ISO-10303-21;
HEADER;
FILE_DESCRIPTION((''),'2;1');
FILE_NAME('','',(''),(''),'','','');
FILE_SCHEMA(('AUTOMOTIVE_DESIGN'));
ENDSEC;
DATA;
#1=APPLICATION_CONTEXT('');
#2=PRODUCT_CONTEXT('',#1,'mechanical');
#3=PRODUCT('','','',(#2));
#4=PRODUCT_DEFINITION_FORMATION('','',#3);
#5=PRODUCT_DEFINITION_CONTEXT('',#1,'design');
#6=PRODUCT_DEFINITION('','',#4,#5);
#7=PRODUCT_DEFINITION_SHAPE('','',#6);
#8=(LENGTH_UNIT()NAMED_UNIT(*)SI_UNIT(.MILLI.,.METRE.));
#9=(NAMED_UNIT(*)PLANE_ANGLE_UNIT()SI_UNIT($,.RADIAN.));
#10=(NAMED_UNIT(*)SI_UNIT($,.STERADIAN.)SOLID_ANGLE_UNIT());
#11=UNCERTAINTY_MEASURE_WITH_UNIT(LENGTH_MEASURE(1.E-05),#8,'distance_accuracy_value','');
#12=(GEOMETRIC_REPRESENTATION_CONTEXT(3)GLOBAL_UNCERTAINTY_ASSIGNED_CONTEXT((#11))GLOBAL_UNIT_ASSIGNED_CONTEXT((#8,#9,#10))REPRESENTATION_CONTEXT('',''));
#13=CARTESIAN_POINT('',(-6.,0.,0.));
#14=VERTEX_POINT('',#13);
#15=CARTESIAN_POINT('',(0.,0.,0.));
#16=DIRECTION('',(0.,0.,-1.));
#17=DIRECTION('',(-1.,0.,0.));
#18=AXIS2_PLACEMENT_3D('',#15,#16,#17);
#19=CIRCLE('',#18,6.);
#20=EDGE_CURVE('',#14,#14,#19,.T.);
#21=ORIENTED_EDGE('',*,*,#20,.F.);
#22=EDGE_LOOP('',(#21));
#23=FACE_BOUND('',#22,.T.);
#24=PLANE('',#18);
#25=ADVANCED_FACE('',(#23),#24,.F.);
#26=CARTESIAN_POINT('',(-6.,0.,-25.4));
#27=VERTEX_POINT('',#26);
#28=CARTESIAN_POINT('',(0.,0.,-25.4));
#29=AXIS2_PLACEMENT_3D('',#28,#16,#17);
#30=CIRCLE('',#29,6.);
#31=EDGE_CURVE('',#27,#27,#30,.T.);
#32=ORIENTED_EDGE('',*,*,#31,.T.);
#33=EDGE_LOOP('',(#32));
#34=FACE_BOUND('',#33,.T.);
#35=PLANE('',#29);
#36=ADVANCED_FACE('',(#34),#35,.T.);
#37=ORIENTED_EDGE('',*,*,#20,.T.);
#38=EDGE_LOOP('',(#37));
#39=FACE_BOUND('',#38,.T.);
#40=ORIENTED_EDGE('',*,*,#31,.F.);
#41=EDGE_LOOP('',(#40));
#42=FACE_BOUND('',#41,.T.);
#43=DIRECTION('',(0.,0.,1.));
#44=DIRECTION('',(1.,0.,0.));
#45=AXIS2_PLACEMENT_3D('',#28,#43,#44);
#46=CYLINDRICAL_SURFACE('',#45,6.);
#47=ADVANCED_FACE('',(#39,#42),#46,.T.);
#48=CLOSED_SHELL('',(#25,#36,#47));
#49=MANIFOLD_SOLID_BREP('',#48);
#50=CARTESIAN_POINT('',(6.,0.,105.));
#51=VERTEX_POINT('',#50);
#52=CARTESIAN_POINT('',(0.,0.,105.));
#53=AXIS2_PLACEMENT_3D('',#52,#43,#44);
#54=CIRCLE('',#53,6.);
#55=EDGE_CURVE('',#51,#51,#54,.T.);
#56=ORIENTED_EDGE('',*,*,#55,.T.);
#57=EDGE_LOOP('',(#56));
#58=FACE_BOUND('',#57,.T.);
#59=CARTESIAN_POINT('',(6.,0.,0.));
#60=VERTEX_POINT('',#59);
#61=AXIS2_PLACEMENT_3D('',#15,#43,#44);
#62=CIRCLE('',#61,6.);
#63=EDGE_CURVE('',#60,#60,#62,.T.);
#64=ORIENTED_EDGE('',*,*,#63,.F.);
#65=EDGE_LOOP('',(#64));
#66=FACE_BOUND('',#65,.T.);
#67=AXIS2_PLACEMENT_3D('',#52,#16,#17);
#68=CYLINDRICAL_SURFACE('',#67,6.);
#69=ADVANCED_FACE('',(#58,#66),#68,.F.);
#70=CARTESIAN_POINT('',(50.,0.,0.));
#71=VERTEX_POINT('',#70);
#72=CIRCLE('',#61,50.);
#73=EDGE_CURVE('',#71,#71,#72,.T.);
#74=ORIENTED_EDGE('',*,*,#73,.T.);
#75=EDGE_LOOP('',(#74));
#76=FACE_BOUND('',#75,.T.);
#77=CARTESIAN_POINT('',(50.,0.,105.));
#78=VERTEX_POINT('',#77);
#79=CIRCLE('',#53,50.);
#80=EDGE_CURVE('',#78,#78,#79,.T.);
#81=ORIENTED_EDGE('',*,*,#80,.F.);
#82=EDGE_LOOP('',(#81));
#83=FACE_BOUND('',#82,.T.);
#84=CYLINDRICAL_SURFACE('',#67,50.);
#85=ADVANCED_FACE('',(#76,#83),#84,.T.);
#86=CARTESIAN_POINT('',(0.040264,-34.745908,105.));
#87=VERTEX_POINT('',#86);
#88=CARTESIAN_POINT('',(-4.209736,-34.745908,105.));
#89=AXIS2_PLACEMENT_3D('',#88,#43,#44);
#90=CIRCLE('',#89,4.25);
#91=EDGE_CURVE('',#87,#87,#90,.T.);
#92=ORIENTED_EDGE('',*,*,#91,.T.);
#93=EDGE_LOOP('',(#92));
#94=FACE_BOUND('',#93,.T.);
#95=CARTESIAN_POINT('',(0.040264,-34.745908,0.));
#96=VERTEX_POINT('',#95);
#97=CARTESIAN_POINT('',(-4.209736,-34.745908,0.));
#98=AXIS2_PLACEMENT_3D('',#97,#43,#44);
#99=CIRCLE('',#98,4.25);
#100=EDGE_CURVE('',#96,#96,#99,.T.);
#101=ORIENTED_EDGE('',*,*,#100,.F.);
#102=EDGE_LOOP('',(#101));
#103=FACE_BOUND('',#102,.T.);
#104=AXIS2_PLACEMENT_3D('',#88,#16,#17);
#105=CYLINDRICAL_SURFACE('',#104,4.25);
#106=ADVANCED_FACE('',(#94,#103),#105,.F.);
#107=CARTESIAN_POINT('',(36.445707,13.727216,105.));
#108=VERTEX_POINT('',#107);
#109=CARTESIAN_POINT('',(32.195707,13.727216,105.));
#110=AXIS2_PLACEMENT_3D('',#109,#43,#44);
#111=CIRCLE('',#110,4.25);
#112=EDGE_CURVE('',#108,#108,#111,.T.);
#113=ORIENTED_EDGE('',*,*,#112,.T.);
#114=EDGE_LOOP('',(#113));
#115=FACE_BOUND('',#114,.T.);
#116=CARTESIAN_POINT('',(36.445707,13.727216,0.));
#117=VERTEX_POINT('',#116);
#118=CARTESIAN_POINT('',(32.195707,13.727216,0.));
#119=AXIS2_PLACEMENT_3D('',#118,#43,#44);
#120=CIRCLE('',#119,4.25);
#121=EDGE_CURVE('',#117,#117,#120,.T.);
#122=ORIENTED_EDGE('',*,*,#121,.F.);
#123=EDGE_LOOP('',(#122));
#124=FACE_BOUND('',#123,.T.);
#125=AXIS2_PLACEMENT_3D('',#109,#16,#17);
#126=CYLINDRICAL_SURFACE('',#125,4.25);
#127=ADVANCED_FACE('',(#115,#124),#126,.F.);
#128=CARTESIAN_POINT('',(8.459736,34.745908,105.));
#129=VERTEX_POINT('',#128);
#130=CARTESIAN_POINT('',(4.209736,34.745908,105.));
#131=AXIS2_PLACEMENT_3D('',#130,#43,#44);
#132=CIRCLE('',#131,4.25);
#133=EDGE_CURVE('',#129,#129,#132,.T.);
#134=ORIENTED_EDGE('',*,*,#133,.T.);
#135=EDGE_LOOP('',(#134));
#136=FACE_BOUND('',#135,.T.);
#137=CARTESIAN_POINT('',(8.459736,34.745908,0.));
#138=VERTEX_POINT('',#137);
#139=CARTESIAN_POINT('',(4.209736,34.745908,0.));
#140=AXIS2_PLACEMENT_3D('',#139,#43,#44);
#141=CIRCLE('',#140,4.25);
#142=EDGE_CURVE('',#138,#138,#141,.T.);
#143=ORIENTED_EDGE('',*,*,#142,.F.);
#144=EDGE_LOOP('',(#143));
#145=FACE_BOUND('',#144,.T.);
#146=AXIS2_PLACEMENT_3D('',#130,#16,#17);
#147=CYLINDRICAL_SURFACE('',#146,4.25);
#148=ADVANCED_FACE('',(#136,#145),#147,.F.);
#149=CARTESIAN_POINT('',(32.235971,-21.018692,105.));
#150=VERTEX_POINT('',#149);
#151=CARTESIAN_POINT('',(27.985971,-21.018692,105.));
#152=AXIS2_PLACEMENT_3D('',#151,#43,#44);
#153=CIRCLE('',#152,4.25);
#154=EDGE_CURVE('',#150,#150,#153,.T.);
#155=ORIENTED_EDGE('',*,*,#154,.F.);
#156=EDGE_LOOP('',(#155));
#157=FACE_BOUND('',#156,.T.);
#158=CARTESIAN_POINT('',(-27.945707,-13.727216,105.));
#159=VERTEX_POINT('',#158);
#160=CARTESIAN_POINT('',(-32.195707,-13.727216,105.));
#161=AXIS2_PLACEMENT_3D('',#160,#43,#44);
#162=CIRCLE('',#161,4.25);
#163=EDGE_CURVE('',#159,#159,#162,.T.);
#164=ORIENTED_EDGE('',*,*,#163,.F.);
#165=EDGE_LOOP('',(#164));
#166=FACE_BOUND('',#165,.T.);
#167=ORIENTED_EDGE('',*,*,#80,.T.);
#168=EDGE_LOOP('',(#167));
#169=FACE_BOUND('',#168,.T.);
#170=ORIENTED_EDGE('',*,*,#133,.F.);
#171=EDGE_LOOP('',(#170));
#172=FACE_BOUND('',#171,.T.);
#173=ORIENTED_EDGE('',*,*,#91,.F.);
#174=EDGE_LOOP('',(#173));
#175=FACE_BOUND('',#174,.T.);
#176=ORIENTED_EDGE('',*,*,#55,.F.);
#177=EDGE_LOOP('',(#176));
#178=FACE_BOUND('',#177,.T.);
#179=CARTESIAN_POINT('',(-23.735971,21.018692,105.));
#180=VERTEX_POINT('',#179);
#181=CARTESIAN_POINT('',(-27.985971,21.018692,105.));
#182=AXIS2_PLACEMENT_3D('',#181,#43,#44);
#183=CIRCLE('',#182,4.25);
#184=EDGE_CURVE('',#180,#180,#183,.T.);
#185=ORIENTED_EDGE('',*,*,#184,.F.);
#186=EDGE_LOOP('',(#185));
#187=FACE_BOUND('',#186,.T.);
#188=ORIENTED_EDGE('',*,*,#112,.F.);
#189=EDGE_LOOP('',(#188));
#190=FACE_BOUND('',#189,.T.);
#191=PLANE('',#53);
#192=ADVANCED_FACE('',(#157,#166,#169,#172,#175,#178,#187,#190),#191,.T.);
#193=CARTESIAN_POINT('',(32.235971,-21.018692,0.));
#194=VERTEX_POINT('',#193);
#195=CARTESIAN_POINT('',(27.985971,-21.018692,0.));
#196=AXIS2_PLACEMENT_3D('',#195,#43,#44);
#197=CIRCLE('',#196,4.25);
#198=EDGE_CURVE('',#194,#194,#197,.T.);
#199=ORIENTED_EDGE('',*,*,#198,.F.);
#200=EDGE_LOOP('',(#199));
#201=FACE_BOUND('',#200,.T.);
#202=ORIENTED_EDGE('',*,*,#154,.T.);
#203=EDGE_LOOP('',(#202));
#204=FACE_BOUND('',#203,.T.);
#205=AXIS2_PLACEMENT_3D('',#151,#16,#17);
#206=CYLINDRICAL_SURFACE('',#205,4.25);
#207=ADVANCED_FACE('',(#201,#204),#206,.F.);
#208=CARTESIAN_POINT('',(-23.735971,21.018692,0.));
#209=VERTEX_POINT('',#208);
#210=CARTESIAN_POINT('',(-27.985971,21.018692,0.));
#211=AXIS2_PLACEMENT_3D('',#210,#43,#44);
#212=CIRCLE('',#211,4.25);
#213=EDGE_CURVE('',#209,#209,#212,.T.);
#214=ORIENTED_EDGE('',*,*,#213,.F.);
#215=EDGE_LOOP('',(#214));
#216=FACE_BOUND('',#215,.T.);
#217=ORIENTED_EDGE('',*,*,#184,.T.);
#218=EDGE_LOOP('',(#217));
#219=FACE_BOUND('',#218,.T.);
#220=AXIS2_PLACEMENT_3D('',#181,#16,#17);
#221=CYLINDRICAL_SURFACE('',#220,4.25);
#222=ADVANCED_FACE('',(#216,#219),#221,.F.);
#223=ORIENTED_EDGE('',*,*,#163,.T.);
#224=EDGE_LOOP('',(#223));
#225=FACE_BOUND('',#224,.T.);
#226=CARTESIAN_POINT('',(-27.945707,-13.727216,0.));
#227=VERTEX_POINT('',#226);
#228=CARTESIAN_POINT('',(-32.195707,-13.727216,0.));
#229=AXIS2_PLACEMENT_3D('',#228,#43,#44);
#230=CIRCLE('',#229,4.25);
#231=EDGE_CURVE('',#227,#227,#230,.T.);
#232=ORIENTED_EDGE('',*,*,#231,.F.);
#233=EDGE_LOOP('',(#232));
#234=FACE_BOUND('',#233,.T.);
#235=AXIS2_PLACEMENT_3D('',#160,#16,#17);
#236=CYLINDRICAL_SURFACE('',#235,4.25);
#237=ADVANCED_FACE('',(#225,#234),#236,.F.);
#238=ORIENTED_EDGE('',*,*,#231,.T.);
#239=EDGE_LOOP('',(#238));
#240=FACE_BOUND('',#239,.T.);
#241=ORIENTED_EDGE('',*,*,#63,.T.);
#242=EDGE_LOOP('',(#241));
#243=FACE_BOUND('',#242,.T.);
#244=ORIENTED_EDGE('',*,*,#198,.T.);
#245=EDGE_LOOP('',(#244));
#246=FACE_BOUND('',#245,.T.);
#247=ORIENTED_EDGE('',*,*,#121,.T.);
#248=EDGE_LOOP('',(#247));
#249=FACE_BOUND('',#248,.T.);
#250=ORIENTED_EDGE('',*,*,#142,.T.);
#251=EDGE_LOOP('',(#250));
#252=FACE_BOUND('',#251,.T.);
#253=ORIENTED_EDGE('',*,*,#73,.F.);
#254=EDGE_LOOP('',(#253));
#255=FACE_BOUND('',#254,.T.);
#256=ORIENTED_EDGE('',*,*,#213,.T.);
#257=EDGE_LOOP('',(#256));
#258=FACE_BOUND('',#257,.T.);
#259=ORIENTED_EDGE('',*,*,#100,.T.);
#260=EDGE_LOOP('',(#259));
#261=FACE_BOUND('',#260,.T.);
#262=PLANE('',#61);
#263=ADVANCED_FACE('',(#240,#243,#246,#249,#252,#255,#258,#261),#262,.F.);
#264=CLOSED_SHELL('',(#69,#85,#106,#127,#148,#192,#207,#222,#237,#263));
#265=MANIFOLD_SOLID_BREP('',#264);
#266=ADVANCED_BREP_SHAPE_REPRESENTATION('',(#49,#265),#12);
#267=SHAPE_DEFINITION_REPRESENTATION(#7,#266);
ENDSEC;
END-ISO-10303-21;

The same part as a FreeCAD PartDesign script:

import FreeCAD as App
import Part
import Sketcher
Q = App.Units.Quantity

doc = App.newDocument("Part")
body = doc.addObject("PartDesign::Body", "Body")

# Sketch on XY plane
sketch1 = doc.addObject("Sketcher::SketchObject", "Sketch")
body.addObject(sketch1)
sketch1.AttachmentSupport = (doc.XY_Plane, [""])
sketch1.MapMode = "FlatFace"
sketch1.addGeometry(Part.Circle(App.Vector(0, 0, 0), App.Vector(0, 0, 1), 50), False)
sketch1.addGeometry(Part.Circle(App.Vector(-4.2, -34.7, 0), App.Vector(0, 0, 1), 4.2), False)
sketch1.addGeometry(Part.Circle(App.Vector(-32.2, -13.7, 0), App.Vector(0, 0, 1), 4.2), False)
sketch1.addGeometry(Part.Circle(App.Vector(28, -21, 0), App.Vector(0, 0, 1), 4.2), False)
sketch1.addGeometry(Part.Circle(App.Vector(0, 0, 0), App.Vector(0, 0, 1), 6), False)
sketch1.addGeometry(Part.Circle(App.Vector(-28, 21, 0), App.Vector(0, 0, 1), 4.2), False)
sketch1.addGeometry(Part.Circle(App.Vector(32.2, 13.7, 0), App.Vector(0, 0, 1), 4.2), False)
sketch1.addGeometry(Part.Circle(App.Vector(4.2, 34.7, 0), App.Vector(0, 0, 1), 4.2), False)
sketch1.addConstraint(Sketcher.Constraint("Coincident", 0, 3, -1, 1))
sketch1.addConstraint(Sketcher.Constraint("Coincident", 4, 3, -1, 1))
sketch1.addConstraint(Sketcher.Constraint("Equal", 1, 2))
sketch1.addConstraint(Sketcher.Constraint("Equal", 2, 3))
sketch1.addConstraint(Sketcher.Constraint("Equal", 3, 5))
sketch1.addConstraint(Sketcher.Constraint("Equal", 5, 6))
sketch1.addConstraint(Sketcher.Constraint("Equal", 6, 7))
sketch1.addConstraint(Sketcher.Constraint("Symmetric", 3, 3, 5, 3, -1, 1))
sketch1.addConstraint(Sketcher.Constraint("Symmetric", 2, 3, 6, 3, -1, 1))
sketch1.addConstraint(Sketcher.Constraint("Symmetric", 1, 3, 7, 3, -1, 1))
sketch1.addConstraint(Sketcher.Constraint("Diameter", 0, Q("100 mm")))
sketch1.addConstraint(Sketcher.Constraint("Diameter", 4, Q("12 mm")))
sketch1.addConstraint(Sketcher.Constraint("Diameter", 1, Q("8.5 mm")))
sketch1.addConstraint(Sketcher.Constraint("DistanceY", 1, 3, 5, 3, Q("55.7646 mm")))
sketch1.addConstraint(Sketcher.Constraint("DistanceX", -1, 1, 3, 3, Q("27.985971 mm")))
sketch1.addConstraint(Sketcher.Constraint("DistanceX", 2, 3, 1, 3, Q("27.985971 mm")))
sketch1.addConstraint(Sketcher.Constraint("DistanceX", 2, 3, 3, 3, Q("60.181678 mm")))
sketch1.addConstraint(Sketcher.Constraint("DistanceY", 1, 3, -1, 1, Q("34.745908 mm")))
sketch1.addConstraint(Sketcher.Constraint("DistanceY", 2, 3, -1, 1, Q("13.727216 mm")))
pad1 = doc.addObject("PartDesign::Pad", "Pad")
body.addObject(pad1)
pad1.Profile = sketch1
pad1.Length = 105
body2 = doc.addObject("PartDesign::Body", "Body001")

# Sketch on XY plane
sketch2 = doc.addObject("Sketcher::SketchObject", "Sketch001")
body2.addObject(sketch2)
sketch2.AttachmentSupport = (doc.getObject("XY_Plane001"), [""])
sketch2.MapMode = "FlatFace"
sketch2.addGeometry(Part.Circle(App.Vector(0, 0, 0), App.Vector(0, 0, 1), 6), False)
sketch2.addConstraint(Sketcher.Constraint("Coincident", 0, 3, -1, 1))
sketch2.addConstraint(Sketcher.Constraint("Diameter", 0, Q("12 mm")))
pad2 = doc.addObject("PartDesign::Pad", "Pad001")
body2.addObject(pad2)
pad2.Profile = sketch2
pad2.Length = 25.4
pad2.Reversed = True

doc.recompute()
